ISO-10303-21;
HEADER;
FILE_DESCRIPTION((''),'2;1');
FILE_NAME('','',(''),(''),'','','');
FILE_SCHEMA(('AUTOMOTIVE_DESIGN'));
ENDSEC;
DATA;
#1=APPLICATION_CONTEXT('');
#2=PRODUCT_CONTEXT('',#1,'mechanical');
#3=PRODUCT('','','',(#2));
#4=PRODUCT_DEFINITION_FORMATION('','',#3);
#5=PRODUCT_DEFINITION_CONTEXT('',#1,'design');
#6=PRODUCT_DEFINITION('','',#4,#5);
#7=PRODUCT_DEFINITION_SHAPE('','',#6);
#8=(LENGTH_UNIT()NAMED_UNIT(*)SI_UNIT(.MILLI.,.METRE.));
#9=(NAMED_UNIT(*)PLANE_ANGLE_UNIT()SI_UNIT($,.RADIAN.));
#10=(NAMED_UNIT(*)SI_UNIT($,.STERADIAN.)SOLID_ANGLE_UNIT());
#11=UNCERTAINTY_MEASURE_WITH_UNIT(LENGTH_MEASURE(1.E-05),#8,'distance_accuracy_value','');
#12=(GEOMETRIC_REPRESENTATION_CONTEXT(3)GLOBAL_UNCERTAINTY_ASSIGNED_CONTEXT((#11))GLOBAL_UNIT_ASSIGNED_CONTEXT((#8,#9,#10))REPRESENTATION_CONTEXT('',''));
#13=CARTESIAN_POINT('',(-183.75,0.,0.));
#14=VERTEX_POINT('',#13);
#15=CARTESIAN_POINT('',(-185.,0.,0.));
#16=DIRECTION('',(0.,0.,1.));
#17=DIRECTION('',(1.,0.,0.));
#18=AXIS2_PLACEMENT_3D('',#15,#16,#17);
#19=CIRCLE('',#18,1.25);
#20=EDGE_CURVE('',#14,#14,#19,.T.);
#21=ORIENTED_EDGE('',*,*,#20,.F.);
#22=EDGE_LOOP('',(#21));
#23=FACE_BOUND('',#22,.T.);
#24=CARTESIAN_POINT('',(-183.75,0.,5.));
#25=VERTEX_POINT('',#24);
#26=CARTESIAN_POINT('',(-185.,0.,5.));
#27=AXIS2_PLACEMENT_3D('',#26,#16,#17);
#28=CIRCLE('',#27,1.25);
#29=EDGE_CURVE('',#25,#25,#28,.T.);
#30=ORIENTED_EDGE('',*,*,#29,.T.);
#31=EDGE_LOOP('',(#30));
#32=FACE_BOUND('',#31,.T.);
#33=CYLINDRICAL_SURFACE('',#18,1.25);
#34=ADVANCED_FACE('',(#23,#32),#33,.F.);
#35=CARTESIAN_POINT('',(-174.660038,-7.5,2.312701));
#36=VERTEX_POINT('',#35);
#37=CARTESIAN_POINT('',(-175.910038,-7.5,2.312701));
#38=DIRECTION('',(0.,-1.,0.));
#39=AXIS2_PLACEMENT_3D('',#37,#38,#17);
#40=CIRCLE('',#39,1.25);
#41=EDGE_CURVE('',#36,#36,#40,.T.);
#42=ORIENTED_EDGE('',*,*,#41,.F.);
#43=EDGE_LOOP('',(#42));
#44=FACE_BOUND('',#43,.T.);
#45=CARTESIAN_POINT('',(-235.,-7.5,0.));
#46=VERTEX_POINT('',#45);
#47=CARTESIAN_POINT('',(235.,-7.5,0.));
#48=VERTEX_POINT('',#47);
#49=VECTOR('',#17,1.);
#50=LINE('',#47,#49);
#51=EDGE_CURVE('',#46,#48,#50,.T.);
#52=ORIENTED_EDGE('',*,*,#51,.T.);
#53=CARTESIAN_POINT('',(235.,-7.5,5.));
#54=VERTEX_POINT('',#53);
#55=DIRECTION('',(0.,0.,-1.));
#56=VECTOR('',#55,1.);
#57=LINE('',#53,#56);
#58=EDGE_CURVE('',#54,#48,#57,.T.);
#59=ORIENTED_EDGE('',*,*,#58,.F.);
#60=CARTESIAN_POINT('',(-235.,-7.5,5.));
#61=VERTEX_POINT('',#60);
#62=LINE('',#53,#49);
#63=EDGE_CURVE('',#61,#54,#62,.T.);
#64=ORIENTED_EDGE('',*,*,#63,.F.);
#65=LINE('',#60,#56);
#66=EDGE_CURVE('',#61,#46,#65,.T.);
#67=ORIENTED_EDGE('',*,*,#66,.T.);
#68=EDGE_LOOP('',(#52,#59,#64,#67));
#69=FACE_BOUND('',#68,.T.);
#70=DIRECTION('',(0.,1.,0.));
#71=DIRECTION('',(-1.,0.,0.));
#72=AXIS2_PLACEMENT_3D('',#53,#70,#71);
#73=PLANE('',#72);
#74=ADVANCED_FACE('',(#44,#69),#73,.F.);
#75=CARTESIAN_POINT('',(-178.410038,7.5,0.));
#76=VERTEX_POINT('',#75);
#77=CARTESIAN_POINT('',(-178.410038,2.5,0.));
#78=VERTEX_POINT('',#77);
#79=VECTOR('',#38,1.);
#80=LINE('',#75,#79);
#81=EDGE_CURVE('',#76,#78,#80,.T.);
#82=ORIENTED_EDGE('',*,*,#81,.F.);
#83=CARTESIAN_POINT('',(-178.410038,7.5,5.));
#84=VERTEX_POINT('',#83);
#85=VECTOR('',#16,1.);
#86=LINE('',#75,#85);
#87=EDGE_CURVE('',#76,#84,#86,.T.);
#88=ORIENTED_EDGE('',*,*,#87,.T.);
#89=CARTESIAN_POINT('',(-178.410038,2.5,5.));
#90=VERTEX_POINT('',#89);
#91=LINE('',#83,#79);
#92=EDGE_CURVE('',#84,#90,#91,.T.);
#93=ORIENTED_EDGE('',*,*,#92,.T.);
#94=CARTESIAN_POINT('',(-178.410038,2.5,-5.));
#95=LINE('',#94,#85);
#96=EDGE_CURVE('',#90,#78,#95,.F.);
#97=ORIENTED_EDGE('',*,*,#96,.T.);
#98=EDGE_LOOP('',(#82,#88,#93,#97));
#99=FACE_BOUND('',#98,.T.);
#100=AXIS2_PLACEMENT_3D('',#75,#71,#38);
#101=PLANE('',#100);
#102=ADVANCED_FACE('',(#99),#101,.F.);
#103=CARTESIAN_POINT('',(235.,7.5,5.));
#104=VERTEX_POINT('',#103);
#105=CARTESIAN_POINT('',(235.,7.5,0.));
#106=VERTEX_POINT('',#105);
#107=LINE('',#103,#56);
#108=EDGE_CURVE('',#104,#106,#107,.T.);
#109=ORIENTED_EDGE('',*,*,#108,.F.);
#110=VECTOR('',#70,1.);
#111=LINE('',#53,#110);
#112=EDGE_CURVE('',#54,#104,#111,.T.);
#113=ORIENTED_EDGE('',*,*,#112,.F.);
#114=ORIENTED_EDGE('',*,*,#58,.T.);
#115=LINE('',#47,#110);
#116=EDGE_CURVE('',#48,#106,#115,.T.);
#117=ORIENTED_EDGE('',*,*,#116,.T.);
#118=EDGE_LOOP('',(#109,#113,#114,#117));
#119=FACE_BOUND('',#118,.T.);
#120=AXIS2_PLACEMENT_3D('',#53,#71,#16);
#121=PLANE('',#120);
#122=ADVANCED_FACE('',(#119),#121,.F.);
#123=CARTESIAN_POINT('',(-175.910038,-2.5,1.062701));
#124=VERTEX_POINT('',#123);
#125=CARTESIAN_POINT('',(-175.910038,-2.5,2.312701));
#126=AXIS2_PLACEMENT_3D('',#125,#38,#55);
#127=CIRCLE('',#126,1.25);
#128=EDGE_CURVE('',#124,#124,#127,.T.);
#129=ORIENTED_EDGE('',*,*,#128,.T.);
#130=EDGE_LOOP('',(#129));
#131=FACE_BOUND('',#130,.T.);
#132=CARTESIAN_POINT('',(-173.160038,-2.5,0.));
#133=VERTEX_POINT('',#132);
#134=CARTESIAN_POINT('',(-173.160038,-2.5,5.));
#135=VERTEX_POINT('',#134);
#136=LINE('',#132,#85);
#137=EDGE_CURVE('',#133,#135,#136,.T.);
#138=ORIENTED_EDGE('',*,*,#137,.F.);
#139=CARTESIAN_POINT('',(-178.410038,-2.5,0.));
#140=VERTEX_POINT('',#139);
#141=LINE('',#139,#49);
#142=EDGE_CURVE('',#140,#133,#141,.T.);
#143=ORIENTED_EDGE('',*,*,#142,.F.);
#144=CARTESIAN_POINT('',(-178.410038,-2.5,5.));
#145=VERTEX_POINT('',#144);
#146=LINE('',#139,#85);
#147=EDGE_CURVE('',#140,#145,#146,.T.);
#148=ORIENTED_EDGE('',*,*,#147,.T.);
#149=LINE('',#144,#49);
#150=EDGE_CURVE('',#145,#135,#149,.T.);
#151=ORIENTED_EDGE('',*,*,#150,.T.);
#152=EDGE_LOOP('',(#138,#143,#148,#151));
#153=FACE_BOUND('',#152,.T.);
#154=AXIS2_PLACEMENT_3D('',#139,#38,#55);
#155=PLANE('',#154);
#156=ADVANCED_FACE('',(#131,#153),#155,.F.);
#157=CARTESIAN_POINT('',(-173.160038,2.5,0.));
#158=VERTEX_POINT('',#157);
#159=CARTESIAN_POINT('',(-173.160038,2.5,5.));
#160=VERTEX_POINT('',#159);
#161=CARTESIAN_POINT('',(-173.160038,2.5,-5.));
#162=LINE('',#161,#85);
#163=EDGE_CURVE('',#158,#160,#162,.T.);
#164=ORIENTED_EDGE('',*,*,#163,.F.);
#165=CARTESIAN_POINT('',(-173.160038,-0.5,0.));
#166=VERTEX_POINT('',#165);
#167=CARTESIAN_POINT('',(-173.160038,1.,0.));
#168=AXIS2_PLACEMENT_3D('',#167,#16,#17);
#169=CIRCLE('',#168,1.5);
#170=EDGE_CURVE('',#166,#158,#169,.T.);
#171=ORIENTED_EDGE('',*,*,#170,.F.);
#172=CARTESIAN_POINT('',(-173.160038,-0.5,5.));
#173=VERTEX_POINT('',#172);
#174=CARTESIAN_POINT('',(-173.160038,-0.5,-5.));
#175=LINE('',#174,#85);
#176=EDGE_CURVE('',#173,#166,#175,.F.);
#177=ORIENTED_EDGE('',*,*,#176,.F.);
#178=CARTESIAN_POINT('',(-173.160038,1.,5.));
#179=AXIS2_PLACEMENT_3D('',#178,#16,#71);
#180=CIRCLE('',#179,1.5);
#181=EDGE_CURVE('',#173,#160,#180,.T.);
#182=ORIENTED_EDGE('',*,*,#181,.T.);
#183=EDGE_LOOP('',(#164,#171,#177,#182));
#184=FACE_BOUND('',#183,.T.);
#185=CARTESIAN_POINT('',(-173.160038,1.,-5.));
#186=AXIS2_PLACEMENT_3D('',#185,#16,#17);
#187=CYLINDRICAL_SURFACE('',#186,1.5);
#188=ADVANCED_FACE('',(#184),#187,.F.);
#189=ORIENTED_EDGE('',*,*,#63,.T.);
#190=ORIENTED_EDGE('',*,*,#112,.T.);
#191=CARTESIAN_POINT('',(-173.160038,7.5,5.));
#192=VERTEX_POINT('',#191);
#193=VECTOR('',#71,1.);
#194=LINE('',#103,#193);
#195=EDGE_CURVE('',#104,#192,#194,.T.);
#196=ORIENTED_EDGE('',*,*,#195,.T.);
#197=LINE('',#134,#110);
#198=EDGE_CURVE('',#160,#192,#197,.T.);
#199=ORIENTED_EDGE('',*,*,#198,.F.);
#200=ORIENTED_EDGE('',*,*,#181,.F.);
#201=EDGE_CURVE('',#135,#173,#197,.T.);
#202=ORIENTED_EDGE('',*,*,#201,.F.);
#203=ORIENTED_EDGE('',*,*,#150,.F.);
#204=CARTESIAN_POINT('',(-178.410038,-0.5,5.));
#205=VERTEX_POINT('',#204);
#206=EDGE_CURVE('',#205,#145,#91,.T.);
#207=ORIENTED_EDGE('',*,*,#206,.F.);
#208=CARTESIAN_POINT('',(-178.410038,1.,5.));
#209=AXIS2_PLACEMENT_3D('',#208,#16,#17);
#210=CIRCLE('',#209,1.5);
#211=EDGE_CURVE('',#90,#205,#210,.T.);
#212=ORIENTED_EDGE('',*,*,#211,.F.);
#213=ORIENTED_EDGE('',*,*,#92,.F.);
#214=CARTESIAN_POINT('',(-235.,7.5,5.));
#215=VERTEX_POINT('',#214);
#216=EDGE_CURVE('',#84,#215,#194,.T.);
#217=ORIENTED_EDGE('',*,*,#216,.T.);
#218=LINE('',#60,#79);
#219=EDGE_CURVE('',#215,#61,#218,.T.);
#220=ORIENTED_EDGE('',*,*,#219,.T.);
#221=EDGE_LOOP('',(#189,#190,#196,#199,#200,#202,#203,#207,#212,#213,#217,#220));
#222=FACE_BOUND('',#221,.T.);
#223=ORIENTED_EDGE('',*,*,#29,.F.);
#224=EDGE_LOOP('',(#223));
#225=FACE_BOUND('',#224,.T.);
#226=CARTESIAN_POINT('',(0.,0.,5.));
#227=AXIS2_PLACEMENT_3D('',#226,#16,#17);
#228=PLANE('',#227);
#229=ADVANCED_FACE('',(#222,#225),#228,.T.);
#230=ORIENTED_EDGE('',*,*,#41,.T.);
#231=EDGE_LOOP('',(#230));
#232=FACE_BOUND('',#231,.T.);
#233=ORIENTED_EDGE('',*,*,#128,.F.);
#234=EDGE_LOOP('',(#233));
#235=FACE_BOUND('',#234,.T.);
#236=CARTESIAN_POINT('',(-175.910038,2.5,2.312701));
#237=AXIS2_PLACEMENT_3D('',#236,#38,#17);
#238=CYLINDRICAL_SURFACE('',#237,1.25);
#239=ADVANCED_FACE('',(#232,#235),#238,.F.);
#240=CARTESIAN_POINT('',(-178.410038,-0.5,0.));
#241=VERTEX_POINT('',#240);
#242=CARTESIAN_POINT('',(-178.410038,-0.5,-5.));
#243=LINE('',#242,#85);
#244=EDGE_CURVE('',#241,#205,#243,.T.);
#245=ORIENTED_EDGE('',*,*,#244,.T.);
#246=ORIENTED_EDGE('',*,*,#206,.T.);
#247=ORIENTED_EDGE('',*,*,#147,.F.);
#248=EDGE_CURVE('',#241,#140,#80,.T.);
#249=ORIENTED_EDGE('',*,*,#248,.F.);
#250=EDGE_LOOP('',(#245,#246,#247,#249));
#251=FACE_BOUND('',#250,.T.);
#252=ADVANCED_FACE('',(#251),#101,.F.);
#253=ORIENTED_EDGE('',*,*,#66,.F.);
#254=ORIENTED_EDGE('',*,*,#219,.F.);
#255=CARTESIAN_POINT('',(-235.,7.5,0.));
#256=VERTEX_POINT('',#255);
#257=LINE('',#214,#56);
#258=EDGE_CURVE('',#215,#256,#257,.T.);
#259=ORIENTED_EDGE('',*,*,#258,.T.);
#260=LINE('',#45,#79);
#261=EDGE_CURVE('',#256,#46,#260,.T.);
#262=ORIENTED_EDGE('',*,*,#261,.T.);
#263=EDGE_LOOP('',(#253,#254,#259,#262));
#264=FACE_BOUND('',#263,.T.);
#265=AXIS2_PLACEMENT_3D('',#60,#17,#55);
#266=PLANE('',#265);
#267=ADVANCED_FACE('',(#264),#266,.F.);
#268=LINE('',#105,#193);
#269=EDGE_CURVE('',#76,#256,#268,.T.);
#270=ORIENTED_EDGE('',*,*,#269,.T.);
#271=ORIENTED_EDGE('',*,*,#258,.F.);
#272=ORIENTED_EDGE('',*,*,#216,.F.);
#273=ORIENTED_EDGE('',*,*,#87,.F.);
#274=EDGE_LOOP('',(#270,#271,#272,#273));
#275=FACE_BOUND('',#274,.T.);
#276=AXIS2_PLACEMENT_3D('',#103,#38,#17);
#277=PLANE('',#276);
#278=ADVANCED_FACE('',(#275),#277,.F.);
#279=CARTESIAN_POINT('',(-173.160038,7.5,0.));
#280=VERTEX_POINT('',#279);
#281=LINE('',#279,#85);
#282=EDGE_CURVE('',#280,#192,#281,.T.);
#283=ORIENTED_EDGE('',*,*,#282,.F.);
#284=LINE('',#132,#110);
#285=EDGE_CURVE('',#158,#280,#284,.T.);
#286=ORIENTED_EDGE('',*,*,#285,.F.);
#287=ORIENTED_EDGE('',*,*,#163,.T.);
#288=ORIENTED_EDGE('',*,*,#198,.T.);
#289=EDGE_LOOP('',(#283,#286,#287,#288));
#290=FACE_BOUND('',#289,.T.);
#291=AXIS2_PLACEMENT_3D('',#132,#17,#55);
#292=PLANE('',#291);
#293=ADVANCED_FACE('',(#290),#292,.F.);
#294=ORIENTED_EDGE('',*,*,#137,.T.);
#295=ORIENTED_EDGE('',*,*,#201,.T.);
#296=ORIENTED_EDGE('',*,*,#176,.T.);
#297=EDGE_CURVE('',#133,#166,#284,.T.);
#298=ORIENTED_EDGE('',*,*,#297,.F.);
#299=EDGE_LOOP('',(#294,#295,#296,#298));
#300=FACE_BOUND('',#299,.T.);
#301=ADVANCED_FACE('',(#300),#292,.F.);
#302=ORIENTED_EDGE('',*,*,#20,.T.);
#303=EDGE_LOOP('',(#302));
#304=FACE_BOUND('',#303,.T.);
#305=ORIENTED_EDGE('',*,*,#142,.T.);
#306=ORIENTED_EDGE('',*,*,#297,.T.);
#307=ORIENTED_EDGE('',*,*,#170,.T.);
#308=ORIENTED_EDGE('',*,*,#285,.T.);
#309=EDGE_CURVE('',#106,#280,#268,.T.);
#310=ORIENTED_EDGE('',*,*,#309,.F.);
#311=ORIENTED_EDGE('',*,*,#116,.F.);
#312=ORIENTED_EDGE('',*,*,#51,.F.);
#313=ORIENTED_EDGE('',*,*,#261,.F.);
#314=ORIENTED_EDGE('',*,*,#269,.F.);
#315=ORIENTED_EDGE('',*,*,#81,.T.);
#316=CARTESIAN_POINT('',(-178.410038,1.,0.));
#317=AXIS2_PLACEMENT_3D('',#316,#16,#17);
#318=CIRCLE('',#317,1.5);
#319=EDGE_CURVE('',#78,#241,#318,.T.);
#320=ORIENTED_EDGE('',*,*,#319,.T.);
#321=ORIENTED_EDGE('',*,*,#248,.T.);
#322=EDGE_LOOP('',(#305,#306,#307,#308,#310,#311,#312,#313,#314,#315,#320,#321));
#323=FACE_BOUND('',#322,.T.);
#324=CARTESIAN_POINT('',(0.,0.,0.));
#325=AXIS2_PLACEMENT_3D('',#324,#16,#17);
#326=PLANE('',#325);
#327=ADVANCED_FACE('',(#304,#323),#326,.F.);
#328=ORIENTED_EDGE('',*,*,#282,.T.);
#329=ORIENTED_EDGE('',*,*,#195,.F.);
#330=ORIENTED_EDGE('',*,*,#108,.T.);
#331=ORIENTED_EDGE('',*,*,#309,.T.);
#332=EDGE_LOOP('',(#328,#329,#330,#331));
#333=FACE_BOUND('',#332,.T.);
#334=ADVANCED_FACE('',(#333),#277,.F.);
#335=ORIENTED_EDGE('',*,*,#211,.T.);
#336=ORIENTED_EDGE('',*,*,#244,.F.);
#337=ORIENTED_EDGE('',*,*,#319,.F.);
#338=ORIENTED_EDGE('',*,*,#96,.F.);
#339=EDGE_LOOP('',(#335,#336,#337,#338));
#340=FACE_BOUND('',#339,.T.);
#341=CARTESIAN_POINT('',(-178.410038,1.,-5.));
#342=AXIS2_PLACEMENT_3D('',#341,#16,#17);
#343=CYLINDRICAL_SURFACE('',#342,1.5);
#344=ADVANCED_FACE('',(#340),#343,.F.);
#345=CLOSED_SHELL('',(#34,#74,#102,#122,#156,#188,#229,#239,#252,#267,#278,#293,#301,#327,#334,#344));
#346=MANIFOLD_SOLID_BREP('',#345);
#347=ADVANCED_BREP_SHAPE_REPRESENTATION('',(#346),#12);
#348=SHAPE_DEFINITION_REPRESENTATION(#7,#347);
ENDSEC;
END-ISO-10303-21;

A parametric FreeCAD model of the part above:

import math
import FreeCAD as App
import Part
import Sketcher

V = App.Vector

doc = App.newDocument("Part")
params = doc.addObject("Spreadsheet::Sheet", "Params")
for row, (alias, value) in enumerate([
    ("sketch1_width", "470 mm"),
    ("sketch1_height", "15 mm"),
    ("pad1_length", "5 mm"),
    ("sketch2_diameter", "2.5 mm"),
    ("sketch3_height", "10 mm"),
    ("sketch3_width", "5.25 mm"),
    ("sketch4_diameter", "2.5 mm"),
    ("pocket3_length", "10 mm"),
    ("sketch5_radius", "1.5 mm"),
    ("pocket4_length", "10 mm"),
], start=1):
    params.set(f"A{row}", alias)
    params.set(f"B{row}", "=" + value)
    params.setAlias(f"B{row}", alias)

body = doc.addObject("PartDesign::Body", "Body")

# Sketch on XY plane
sketch1 = body.newObject("Sketcher::SketchObject", "Sketch")
sketch1.AttachmentSupport = (doc.getObject("XY_Plane"), [""])
sketch1.MapMode = "FlatFace"
sketch1.addGeometry(Part.LineSegment(V(-235, 8, 0), V(-235, -8, 0)), False)
sketch1.addGeometry(Part.LineSegment(V(-235, -8, 0), V(235, -8, 0)), False)
sketch1.addGeometry(Part.LineSegment(V(235, -8, 0), V(235, 8, 0)), False)
sketch1.addGeometry(Part.LineSegment(V(235, 8, 0), V(-235, 8, 0)), False)
sketch1.addConstraint(Sketcher.Constraint("Coincident", 0, 2, 1, 1))
sketch1.addConstraint(Sketcher.Constraint("Coincident", 1, 2, 2, 1))
sketch1.addConstraint(Sketcher.Constraint("Coincident", 2, 2, 3, 1))
sketch1.addConstraint(Sketcher.Constraint("Coincident", 3, 2, 0, 1))
sketch1.addConstraint(Sketcher.Constraint("Vertical", 0))
sketch1.addConstraint(Sketcher.Constraint("Horizontal", 1))
sketch1.addConstraint(Sketcher.Constraint("Vertical", 2))
sketch1.addConstraint(Sketcher.Constraint("Horizontal", 3))
sketch1.addConstraint(Sketcher.Constraint("Symmetric", 0, 2, 2, 2, -1, 1))
sketch1.addConstraint(Sketcher.Constraint("DistanceX", 1, 1, 1, 2, 470.0))
sketch1.addConstraint(Sketcher.Constraint("DistanceY", 0, 2, 0, 1, 15.0))
sketch1.setExpression("Constraints[9]", "Params.sketch1_width")
sketch1.setExpression("Constraints[10]", "Params.sketch1_height")
pad1 = body.newObject("PartDesign::Pad", "Pad")
pad1.Profile = sketch1
pad1.setExpression("Length", "Params.pad1_length")

# Sketch on XY plane
sketch2 = body.newObject("Sketcher::SketchObject", "Sketch001")
sketch2.AttachmentSupport = (doc.getObject("XY_Plane"), [""])
sketch2.MapMode = "FlatFace"
sketch2.AttachmentOffset = App.Placement(V(0, 0, 5), App.Rotation())
sketch2.addGeometry(Part.Circle(V(-185, 0, 0), V(0, 0, 1), 1.2), False)
sketch2.addConstraint(Sketcher.Constraint("PointOnObject", 0, 3, -1))
sketch2.addConstraint(Sketcher.Constraint("Diameter", 0, 2.5))
sketch2.addConstraint(Sketcher.Constraint("DistanceX", 0, 3, -1, 1, 185.0))
sketch2.setExpression("Constraints[1]", "Params.sketch2_diameter")
pocket1 = body.newObject("PartDesign::Pocket", "Pocket")
pocket1.Profile = sketch2
pocket1.Type = "ThroughAll"

# Sketch on XY plane
sketch3 = body.newObject("Sketcher::SketchObject", "Sketch002")
sketch3.AttachmentSupport = (doc.getObject("XY_Plane"), [""])
sketch3.MapMode = "FlatFace"
sketch3.AttachmentOffset = App.Placement(V(0, 0, 5), App.Rotation())
sketch3.addGeometry(Part.LineSegment(V(-178, 8, 0), V(-178, -2, 0)), False)
sketch3.addGeometry(Part.LineSegment(V(-178, -2, 0), V(-173, -2, 0)), False)
sketch3.addGeometry(Part.LineSegment(V(-173, -2, 0), V(-173, 8, 0)), False)
sketch3.addGeometry(Part.LineSegment(V(-173, 8, 0), V(-178, 8, 0)), False)
sketch3.addConstraint(Sketcher.Constraint("Coincident", 0, 2, 1, 1))
sketch3.addConstraint(Sketcher.Constraint("Coincident", 1, 2, 2, 1))
sketch3.addConstraint(Sketcher.Constraint("Coincident", 2, 2, 3, 1))
sketch3.addConstraint(Sketcher.Constraint("Coincident", 3, 2, 0, 1))
sketch3.addConstraint(Sketcher.Constraint("Vertical", 0))
sketch3.addConstraint(Sketcher.Constraint("Horizontal", 1))
sketch3.addConstraint(Sketcher.Constraint("Vertical", 2))
sketch3.addConstraint(Sketcher.Constraint("Horizontal", 3))
sketch3.addConstraint(Sketcher.Constraint("DistanceY", 0, 2, 0, 1, 10.0))
sketch3.addConstraint(Sketcher.Constraint("DistanceX", 1, 1, 1, 2, 5.25))
sketch3.addConstraint(Sketcher.Constraint("DistanceY", 0, 2, -1, 1, 2.5))
sketch3.addConstraint(Sketcher.Constraint("DistanceX", 0, 2, -1, 1, 178.410038))
sketch3.setExpression("Constraints[8]", "Params.sketch3_height")
sketch3.setExpression("Constraints[9]", "Params.sketch3_width")
pocket2 = body.newObject("PartDesign::Pocket", "Pocket001")
pocket2.Profile = sketch3
pocket2.Type = "ThroughAll"

# Sketch on XZ plane
sketch4 = body.newObject("Sketcher::SketchObject", "Sketch003")
sketch4.AttachmentSupport = (doc.getObject("XZ_Plane"), [""])
sketch4.MapMode = "FlatFace"
sketch4.AttachmentOffset = App.Placement(V(0, 0, 7.5), App.Rotation())
sketch4.addGeometry(Part.Circle(V(-175.9, 2.3, 0), V(0, 0, 1), 1.2), False)
sketch4.addConstraint(Sketcher.Constraint("Diameter", 0, 2.5))
sketch4.addConstraint(Sketcher.Constraint("DistanceY", -1, 1, 0, 3, 2.312701))
sketch4.addConstraint(Sketcher.Constraint("DistanceX", 0, 3, -1, 1, 175.910038))
sketch4.setExpression("Constraints[0]", "Params.sketch4_diameter")
pocket3 = body.newObject("PartDesign::Pocket", "Pocket002")
pocket3.Profile = sketch4
pocket3.setExpression("Length", "Params.pocket3_length")

# Sketch on XY plane
sketch5 = body.newObject("Sketcher::SketchObject", "Sketch004")
sketch5.AttachmentSupport = (doc.getObject("XY_Plane"), [""])
sketch5.MapMode = "FlatFace"
sketch5.AttachmentOffset = App.Placement(V(0, 0, 5), App.Rotation())
sketch5.addGeometry(Part.LineSegment(V(-178.4, -0.5, 0), V(-178.4, 2.5, 0)), False)
sketch5.addGeometry(Part.ArcOfCircle(Part.Circle(V(-178.4, 1, 0), V(0, 0, 1), 1.5), math.radians(90), math.radians(270)), False)
sketch5.addGeometry(Part.LineSegment(V(-173.2, 2.5, 0), V(-173.2, -0.5, 0)), False)
sketch5.addGeometry(Part.ArcOfCircle(Part.Circle(V(-173.2, 1, 0), V(0, 0, 1), 1.5), math.radians(-90), math.radians(90)), False)
sketch5.addConstraint(Sketcher.Constraint("Coincident", 0, 1, 1, 2))
sketch5.addConstraint(Sketcher.Constraint("Coincident", 1, 1, 0, 2))
sketch5.addConstraint(Sketcher.Constraint("Coincident", 2, 1, 3, 2))
sketch5.addConstraint(Sketcher.Constraint("Coincident", 3, 1, 2, 2))
sketch5.addConstraint(Sketcher.Constraint("Vertical", 0))
sketch5.addConstraint(Sketcher.Constraint("Vertical", 2))
sketch5.addConstraint(Sketcher.Constraint("Equal", 1, 3))
sketch5.addConstraint(Sketcher.Constraint("Horizontal", 1, 3, 3, 3))
sketch5.addConstraint(Sketcher.Constraint("Vertical", 1, 3, 0, 1))
sketch5.addConstraint(Sketcher.Constraint("Vertical", 3, 3, 2, 1))
sketch5.addConstraint(Sketcher.Constraint("Radius", 1, 1.5))
sketch5.addConstraint(Sketcher.Constraint("DistanceY", -1, 1, 1, 3, 1.0))
sketch5.addConstraint(Sketcher.Constraint("DistanceX", 1, 3, 3, 3, 5.25))
sketch5.addConstraint(Sketcher.Constraint("DistanceX", 1, 3, -1, 1, 178.410038))
sketch5.setExpression("Constraints[10]", "Params.sketch5_radius")
pocket4 = body.newObject("PartDesign::Pocket", "Pocket003")
pocket4.Profile = sketch5
pocket4.setExpression("Length", "Params.pocket4_length")

doc.recompute()
